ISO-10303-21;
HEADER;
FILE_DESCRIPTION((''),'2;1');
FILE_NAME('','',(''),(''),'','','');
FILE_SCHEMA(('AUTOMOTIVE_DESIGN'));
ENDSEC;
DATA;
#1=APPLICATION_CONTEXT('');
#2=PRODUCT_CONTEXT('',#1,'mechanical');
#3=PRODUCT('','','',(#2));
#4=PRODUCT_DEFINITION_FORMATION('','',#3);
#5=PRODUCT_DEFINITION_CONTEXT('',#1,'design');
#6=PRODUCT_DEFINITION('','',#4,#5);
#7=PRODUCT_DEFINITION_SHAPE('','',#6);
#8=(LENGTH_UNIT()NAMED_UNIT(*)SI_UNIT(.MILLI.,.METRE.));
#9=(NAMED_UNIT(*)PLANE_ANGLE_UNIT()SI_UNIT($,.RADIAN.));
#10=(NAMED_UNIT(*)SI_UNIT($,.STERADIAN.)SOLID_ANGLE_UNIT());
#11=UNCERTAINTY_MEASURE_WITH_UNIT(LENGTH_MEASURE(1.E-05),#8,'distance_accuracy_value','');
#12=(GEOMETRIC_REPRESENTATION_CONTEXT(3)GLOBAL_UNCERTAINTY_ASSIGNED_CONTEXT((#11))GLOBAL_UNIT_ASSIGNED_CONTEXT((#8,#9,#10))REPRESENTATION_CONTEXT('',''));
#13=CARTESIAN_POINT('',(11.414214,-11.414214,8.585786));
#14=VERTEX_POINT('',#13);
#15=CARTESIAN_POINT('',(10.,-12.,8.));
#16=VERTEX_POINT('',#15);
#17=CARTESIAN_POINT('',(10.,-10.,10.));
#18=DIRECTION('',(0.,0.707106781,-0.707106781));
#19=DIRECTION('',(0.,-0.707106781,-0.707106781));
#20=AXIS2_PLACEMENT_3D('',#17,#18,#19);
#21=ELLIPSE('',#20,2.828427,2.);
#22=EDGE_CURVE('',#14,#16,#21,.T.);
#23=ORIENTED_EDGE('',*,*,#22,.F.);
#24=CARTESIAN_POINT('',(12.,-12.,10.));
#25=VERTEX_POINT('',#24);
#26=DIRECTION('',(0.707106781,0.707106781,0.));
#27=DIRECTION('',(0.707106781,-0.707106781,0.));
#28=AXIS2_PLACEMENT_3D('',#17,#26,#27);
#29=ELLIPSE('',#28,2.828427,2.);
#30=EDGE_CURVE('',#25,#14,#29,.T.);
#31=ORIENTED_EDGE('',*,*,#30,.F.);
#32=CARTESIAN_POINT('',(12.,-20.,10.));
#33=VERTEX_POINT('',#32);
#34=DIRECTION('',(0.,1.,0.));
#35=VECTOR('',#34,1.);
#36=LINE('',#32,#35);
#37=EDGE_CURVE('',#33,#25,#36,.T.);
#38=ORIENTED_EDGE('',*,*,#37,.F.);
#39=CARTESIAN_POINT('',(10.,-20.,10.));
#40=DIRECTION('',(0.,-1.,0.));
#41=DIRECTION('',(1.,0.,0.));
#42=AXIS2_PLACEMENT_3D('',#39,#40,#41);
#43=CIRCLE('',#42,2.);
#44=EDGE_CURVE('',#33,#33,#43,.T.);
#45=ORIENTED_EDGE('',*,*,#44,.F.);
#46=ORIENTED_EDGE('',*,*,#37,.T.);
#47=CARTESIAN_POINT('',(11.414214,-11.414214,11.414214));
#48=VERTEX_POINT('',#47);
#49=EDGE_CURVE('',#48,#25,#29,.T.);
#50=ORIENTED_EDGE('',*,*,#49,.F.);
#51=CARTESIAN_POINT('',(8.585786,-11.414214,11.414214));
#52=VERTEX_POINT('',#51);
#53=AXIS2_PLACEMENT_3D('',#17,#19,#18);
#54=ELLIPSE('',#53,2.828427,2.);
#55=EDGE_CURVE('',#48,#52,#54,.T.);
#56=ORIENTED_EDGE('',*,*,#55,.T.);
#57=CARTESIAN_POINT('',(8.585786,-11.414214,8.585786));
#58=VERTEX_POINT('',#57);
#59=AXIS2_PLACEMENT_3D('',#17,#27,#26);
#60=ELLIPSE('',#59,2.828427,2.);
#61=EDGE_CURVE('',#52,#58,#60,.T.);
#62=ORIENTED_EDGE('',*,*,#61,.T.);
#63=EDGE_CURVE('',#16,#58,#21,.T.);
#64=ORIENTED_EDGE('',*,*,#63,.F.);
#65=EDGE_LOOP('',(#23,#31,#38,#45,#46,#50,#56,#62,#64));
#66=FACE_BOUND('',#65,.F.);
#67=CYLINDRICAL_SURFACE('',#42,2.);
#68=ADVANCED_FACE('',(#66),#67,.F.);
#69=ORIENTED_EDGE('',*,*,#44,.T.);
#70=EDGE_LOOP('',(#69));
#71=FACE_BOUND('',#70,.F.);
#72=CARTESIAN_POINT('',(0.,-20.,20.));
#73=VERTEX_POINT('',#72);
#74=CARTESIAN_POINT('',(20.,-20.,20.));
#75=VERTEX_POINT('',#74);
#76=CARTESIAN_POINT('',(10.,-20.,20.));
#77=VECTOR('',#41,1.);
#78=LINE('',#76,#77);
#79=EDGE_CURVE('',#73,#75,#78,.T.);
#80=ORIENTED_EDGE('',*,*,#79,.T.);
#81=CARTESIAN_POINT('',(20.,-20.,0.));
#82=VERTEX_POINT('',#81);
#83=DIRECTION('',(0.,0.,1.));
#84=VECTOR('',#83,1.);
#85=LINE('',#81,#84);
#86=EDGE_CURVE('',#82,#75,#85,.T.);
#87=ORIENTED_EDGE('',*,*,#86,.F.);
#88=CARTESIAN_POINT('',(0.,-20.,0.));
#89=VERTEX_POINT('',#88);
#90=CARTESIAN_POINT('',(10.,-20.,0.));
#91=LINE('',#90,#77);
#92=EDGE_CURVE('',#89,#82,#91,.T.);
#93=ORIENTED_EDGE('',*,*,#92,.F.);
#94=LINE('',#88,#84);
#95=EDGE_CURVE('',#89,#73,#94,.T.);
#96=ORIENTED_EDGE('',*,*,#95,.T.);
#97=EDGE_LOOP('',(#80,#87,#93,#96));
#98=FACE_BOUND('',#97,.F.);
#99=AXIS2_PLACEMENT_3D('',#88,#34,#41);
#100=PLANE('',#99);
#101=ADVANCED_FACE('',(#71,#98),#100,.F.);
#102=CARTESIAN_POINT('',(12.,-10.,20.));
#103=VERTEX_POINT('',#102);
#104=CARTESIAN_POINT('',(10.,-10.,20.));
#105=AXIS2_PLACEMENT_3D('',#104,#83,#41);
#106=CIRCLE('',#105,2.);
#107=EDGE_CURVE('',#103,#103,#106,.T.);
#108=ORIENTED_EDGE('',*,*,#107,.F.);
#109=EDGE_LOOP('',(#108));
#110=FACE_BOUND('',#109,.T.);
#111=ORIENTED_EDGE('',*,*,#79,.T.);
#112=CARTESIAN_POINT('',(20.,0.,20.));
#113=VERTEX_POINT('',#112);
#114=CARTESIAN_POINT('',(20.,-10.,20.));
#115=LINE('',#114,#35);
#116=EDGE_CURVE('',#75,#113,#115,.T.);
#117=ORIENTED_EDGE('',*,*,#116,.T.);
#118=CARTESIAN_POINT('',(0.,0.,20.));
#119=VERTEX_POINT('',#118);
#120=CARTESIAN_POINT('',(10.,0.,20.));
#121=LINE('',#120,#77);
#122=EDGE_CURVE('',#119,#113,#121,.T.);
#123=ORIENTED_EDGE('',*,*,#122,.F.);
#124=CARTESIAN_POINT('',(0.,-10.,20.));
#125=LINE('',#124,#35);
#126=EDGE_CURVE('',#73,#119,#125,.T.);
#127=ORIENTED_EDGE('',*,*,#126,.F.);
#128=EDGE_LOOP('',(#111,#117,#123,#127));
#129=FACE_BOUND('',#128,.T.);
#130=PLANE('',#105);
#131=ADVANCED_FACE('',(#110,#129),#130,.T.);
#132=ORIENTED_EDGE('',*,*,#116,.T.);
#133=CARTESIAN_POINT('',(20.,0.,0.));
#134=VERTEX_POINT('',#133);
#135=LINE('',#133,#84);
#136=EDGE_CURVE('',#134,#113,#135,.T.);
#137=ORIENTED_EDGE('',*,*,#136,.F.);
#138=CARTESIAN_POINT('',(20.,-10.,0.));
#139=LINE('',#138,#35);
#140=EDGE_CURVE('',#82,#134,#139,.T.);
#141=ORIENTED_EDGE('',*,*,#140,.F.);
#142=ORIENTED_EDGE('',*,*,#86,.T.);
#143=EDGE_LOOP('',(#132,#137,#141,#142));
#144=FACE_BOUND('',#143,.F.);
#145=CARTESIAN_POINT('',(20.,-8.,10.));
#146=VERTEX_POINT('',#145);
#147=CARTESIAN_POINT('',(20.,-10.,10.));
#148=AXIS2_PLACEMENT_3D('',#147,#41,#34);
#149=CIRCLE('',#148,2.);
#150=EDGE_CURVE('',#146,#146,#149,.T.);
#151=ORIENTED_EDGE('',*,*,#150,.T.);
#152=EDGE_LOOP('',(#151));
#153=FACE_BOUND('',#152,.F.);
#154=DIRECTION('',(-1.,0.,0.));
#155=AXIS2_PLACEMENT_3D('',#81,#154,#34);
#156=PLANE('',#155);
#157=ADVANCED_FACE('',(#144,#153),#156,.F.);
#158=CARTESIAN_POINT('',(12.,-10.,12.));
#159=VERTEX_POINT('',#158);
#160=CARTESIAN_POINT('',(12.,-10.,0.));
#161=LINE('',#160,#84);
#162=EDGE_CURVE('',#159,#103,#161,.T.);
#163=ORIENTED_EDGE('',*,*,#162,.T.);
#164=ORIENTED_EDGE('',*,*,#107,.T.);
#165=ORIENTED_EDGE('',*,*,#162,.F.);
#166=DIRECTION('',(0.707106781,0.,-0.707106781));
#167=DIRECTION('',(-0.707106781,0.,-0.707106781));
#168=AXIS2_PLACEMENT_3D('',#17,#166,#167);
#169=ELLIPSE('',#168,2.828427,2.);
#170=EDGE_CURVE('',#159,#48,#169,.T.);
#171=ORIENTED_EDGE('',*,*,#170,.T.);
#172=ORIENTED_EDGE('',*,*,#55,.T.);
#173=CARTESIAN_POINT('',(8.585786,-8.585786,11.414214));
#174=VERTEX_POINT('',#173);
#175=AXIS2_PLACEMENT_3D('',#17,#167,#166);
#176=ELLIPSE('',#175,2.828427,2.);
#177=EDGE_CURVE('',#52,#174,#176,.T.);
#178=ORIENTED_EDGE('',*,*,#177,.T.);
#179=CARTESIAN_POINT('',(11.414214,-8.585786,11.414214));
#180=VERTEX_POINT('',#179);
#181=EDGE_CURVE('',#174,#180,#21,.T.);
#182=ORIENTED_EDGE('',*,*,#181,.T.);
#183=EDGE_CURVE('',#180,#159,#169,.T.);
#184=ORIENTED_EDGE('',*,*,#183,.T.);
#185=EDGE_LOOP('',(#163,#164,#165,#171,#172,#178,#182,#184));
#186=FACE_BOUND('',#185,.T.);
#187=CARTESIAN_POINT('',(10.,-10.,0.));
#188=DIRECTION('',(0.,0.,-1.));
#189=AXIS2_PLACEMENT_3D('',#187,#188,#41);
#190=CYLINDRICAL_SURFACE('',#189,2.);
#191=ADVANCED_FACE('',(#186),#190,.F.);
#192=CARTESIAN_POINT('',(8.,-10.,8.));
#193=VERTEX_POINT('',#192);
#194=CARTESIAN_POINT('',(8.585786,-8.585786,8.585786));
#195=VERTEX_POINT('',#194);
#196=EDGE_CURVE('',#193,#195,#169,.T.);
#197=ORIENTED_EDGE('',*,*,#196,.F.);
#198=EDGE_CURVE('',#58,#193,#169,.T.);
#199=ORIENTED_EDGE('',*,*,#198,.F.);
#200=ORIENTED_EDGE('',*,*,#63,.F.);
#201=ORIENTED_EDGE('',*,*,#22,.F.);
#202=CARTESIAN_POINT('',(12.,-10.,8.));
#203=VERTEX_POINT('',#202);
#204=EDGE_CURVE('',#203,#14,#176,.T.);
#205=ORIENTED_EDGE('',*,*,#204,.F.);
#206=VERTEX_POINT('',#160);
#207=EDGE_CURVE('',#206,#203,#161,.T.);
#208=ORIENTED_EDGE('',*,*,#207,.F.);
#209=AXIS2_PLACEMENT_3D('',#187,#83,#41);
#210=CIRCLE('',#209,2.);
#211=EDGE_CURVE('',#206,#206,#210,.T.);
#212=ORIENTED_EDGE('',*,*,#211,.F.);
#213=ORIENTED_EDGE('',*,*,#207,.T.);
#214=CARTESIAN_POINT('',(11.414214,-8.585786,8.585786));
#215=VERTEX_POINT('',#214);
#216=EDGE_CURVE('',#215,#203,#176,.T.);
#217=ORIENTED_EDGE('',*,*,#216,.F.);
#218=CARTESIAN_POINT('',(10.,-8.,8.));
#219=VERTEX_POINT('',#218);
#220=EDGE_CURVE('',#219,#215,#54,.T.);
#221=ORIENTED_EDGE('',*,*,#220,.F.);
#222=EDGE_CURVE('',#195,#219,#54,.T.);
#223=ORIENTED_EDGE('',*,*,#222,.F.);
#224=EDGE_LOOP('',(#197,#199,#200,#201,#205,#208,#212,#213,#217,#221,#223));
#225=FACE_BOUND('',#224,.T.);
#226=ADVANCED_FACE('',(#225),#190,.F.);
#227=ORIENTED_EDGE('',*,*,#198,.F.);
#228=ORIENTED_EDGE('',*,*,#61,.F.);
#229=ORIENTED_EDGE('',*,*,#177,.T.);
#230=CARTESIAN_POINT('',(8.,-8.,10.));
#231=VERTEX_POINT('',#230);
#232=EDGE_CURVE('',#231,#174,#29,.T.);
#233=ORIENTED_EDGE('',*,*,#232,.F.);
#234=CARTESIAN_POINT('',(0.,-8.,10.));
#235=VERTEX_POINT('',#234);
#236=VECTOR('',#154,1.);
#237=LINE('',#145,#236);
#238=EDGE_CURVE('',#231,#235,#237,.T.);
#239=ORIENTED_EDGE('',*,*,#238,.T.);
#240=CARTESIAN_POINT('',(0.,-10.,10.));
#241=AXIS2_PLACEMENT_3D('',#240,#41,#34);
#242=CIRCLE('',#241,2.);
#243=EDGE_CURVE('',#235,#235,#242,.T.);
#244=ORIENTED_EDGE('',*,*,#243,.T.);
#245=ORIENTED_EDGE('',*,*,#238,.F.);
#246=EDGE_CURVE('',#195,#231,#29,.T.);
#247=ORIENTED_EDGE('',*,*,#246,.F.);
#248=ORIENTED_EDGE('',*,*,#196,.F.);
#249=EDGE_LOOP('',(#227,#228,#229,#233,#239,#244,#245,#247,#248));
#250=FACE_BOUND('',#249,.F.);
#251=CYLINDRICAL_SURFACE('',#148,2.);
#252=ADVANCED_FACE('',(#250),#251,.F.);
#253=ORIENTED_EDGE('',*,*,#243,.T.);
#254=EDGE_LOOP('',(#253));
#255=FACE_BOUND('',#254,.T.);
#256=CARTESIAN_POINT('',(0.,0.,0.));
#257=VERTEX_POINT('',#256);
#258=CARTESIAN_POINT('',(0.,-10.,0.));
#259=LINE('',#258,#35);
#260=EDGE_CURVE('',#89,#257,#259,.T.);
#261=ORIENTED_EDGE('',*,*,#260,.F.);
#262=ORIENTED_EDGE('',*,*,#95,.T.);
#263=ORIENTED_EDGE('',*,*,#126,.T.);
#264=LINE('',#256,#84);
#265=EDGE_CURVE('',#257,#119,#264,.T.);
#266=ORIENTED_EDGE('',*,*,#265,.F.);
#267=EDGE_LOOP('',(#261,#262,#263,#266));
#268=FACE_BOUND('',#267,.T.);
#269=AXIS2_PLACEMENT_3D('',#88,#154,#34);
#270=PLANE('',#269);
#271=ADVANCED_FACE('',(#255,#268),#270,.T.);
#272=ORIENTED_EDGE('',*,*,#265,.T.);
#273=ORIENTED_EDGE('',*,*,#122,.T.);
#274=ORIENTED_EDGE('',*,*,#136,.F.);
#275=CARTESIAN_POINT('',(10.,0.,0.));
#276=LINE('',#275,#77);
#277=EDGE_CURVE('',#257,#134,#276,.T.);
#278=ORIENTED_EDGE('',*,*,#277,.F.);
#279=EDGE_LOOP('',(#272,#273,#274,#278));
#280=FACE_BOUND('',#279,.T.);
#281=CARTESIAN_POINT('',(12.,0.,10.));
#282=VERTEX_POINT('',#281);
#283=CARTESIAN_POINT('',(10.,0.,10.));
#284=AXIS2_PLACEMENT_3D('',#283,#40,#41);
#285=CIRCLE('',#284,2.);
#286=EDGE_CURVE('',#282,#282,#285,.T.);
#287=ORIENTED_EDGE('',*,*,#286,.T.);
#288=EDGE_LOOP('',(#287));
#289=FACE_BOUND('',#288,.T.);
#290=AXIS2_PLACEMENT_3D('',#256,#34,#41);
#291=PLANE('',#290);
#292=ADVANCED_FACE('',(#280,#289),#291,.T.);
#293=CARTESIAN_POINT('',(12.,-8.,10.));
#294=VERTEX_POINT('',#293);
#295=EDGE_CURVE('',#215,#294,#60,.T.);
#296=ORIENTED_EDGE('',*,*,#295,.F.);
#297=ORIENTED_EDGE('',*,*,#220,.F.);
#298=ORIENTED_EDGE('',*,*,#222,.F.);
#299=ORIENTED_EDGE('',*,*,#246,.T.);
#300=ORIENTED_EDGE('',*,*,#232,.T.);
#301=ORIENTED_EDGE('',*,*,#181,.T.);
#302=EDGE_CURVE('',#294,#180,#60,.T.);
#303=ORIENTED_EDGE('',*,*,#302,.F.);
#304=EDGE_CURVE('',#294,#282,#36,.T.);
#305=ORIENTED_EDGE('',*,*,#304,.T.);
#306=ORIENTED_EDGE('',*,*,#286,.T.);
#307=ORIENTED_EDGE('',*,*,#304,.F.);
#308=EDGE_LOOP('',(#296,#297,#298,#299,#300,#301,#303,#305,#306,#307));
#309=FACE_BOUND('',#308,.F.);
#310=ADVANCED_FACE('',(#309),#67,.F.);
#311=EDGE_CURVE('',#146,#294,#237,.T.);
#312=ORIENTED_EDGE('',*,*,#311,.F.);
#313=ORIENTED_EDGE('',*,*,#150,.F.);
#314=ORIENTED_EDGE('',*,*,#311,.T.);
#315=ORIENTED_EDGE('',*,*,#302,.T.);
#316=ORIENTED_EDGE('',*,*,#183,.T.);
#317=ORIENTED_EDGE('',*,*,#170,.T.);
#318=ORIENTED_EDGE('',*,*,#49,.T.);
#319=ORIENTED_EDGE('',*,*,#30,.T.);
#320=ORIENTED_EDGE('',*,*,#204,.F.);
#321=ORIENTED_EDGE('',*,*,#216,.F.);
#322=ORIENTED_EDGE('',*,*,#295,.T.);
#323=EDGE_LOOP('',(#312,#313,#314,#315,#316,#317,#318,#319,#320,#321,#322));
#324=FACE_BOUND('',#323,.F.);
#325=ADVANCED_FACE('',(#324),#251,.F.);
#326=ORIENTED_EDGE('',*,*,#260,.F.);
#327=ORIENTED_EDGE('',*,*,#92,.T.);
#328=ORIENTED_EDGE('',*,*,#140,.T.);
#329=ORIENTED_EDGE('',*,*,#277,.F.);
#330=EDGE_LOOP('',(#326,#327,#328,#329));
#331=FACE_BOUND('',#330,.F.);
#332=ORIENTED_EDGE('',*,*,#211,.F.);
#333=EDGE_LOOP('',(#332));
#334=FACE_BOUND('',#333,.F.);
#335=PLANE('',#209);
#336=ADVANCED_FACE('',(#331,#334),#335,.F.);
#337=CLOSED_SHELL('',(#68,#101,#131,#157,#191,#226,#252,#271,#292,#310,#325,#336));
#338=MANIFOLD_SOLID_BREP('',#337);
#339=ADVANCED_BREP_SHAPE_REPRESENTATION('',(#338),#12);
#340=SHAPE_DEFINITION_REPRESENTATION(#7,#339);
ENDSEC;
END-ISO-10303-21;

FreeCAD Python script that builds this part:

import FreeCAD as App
import Part
import Sketcher
from FreeCAD import Vector

doc = App.newDocument("Part")
params = doc.addObject("Spreadsheet::Sheet", "Params")
for row, (alias, value) in enumerate([
    ("sketch1_diameter", "4 mm"),
    ("sketch1_width", "20 mm"),
    ("pad1_length", "20 mm"),
    ("sketch2_diameter", "4 mm"),
    ("sketch3_diameter", "4 mm"),
], start=1):
    params.set(f"A{row}", alias)
    params.set(f"B{row}", "=" + value)
    params.setAlias(f"B{row}", alias)

body = doc.addObject("PartDesign::Body", "Body")

# Sketch on XY plane
sketch1 = doc.addObject("Sketcher::SketchObject", "Sketch")
body.addObject(sketch1)
sketch1.AttachmentSupport = (doc.XY_Plane, [""])
sketch1.MapMode = "FlatFace"
sketch1.addGeometry(Part.LineSegment(Vector(0, 0, 0), Vector(0, -20, 0)), False)
sketch1.addGeometry(Part.LineSegment(Vector(0, -20, 0), Vector(20, -20, 0)), False)
sketch1.addGeometry(Part.LineSegment(Vector(20, -20, 0), Vector(20, 0, 0)), False)
sketch1.addGeometry(Part.LineSegment(Vector(20, 0, 0), Vector(0, 0, 0)), False)
sketch1.addGeometry(Part.Circle(Vector(10, -10, 0), Vector(0, 0, 1), 2), False)
sketch1.addConstraint(Sketcher.Constraint("Coincident", 0, 2, 1, 1))
sketch1.addConstraint(Sketcher.Constraint("Coincident", 1, 2, 2, 1))
sketch1.addConstraint(Sketcher.Constraint("Coincident", 2, 2, 3, 1))
sketch1.addConstraint(Sketcher.Constraint("Coincident", 3, 2, 0, 1))
sketch1.addConstraint(Sketcher.Constraint("Vertical", 0))
sketch1.addConstraint(Sketcher.Constraint("Horizontal", 1))
sketch1.addConstraint(Sketcher.Constraint("Vertical", 2))
sketch1.addConstraint(Sketcher.Constraint("Horizontal", 3))
sketch1.addConstraint(Sketcher.Constraint("Coincident", 3, 2, -1, 1))
sketch1.addConstraint(Sketcher.Constraint("Equal", 3, 0))
sketch1.addConstraint(Sketcher.Constraint("Diameter", 4, 4.0))
sketch1.addConstraint(Sketcher.Constraint("DistanceX", 1, 1, 1, 2, 20.0))
sketch1.addConstraint(Sketcher.Constraint("DistanceX", -1, 1, 4, 3, 10.0))
sketch1.addConstraint(Sketcher.Constraint("DistanceY", 4, 3, -1, 1, 10.0))
sketch1.setExpression("Constraints[10]", "Params.sketch1_diameter")
sketch1.setExpression("Constraints[11]", "Params.sketch1_width")
pad1 = doc.addObject("PartDesign::Pad", "Pad")
body.addObject(pad1)
pad1.Profile = sketch1
pad1.setExpression("Length", "Params.pad1_length")

# Sketch on YZ plane
sketch2 = doc.addObject("Sketcher::SketchObject", "Sketch001")
body.addObject(sketch2)
sketch2.AttachmentSupport = (doc.YZ_Plane, [""])
sketch2.MapMode = "FlatFace"
sketch2.AttachmentOffset = App.Placement(Vector(0, 0, 20), App.Rotation())
sketch2.addGeometry(Part.Circle(Vector(-10, 10, 0), Vector(0, 0, 1), 2), False)
sketch2.addConstraint(Sketcher.Constraint("Diameter", 0, 4.0))
sketch2.addConstraint(Sketcher.Constraint("DistanceX", 0, 3, -1, 1, 10.0))
sketch2.addConstraint(Sketcher.Constraint("DistanceY", -1, 1, 0, 3, 10.0))
sketch2.setExpression("Constraints[0]", "Params.sketch2_diameter")
pocket1 = doc.addObject("PartDesign::Pocket", "Pocket")
body.addObject(pocket1)
pocket1.Profile = sketch2
pocket1.Type = "ThroughAll"

# Sketch on XZ plane
sketch3 = doc.addObject("Sketcher::SketchObject", "Sketch002")
body.addObject(sketch3)
sketch3.AttachmentSupport = (doc.XZ_Plane, [""])
sketch3.MapMode = "FlatFace"
sketch3.AttachmentOffset = App.Placement(Vector(0, 0, 20), App.Rotation())
sketch3.addGeometry(Part.Circle(Vector(10, 10, 0), Vector(0, 0, 1), 2), False)
sketch3.addConstraint(Sketcher.Constraint("Diameter", 0, 4.0))
sketch3.addConstraint(Sketcher.Constraint("DistanceX", -1, 1, 0, 3, 10.0))
sketch3.addConstraint(Sketcher.Constraint("DistanceY", -1, 1, 0, 3, 10.0))
sketch3.setExpression("Constraints[0]", "Params.sketch3_diameter")
pocket2 = doc.addObject("PartDesign::Pocket", "Pocket001")
body.addObject(pocket2)
pocket2.Profile = sketch3
pocket2.Type = "ThroughAll"

doc.recompute()
